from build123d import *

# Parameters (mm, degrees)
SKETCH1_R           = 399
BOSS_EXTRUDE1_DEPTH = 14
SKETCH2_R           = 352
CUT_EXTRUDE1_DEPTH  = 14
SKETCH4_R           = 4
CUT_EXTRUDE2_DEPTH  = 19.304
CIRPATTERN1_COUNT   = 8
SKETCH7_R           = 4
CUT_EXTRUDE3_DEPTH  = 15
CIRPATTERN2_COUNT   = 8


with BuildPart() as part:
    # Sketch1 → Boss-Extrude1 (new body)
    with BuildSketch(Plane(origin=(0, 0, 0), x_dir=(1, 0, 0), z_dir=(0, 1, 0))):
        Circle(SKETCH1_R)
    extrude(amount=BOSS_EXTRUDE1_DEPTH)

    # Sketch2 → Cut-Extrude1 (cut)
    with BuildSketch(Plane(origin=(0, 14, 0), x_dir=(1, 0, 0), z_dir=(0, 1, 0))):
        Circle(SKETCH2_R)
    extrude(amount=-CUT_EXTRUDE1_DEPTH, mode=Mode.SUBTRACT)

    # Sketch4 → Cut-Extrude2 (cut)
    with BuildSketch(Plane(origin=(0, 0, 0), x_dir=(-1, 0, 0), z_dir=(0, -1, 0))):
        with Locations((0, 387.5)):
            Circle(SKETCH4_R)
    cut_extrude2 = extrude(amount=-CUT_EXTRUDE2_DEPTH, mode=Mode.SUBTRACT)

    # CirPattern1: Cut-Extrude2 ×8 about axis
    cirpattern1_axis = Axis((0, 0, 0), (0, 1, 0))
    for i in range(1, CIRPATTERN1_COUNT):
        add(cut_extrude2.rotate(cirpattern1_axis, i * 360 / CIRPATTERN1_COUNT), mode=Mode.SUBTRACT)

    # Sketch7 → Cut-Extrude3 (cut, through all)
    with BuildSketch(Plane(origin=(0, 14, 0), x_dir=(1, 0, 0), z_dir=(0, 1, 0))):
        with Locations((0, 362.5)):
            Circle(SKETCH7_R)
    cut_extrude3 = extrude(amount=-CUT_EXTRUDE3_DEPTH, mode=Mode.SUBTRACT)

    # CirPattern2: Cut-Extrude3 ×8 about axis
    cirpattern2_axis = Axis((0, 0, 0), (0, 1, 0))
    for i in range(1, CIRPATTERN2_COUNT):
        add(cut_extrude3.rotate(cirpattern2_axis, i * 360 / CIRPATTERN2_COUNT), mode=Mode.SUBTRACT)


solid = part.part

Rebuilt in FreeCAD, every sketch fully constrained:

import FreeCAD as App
import Part
import Sketcher

doc = App.newDocument("Part")
params = doc.addObject("Spreadsheet::Sheet", "Params")
for row, (alias, value) in enumerate([
    ("sketch1_diameter", "798 mm"),
    ("pad1_length", "14 mm"),
    ("sketch2_diameter", "704 mm"),
    ("pocket1_length", "14 mm"),
    ("sketch3_diameter", "8 mm"),
    ("pocket2_length", "19.304 mm"),
    ("sketch4_diameter", "8 mm"),
], start=1):
    params.set(f"A{row}", alias)
    params.set(f"B{row}", "=" + value)
    params.setAlias(f"B{row}", alias)

body = doc.addObject("PartDesign::Body", "Body")

# Sketch on XZ plane
sketch1 = body.newObject("Sketcher::SketchObject", "Sketch")
sketch1.AttachmentSupport = (doc.getObject("XZ_Plane"), [""])
sketch1.MapMode = "FlatFace"
sketch1.addGeometry(Part.Circle(App.Vector(0, 0, 0), App.Vector(0, 0, 1), 399), False)
sketch1.addConstraint(Sketcher.Constraint("Coincident", 0, 3, -1, 1))
sketch1.addConstraint(Sketcher.Constraint("Diameter", 0, 798.0))
sketch1.setExpression("Constraints[1]", "Params.sketch1_diameter")
pad1 = body.newObject("PartDesign::Pad", "Pad")
pad1.Profile = sketch1
pad1.setExpression("Length", "Params.pad1_length")
pad1.Reversed = True

# Sketch on XZ plane
sketch2 = body.newObject("Sketcher::SketchObject", "Sketch001")
sketch2.AttachmentSupport = (doc.getObject("XZ_Plane"), [""])
sketch2.MapMode = "FlatFace"
sketch2.AttachmentOffset = App.Placement(App.Vector(0, 0, -14), App.Rotation())
sketch2.addGeometry(Part.Circle(App.Vector(0, 0, 0), App.Vector(0, 0, 1), 352), False)
sketch2.addConstraint(Sketcher.Constraint("Coincident", 0, 3, -1, 1))
sketch2.addConstraint(Sketcher.Constraint("Diameter", 0, 704.0))
sketch2.setExpression("Constraints[1]", "Params.sketch2_diameter")
pocket1 = body.newObject("PartDesign::Pocket", "Pocket")
pocket1.Profile = sketch2
pocket1.setExpression("Length", "Params.pocket1_length")
pocket1.Reversed = True

# Sketch on XZ plane
sketch3 = body.newObject("Sketcher::SketchObject", "Sketch002")
sketch3.AttachmentSupport = (doc.getObject("XZ_Plane"), [""])
sketch3.MapMode = "FlatFace"
sketch3.addGeometry(Part.Circle(App.Vector(0, -387.5, 0), App.Vector(0, 0, 1), 4), False)
sketch3.addConstraint(Sketcher.Constraint("PointOnObject", 0, 3, -2))
sketch3.addConstraint(Sketcher.Constraint("Diameter", 0, 8.0))
sketch3.addConstraint(Sketcher.Constraint("DistanceY", 0, 3, -1, 1, 387.5))
sketch3.setExpression("Constraints[1]", "Params.sketch3_diameter")
pocket2 = body.newObject("PartDesign::Pocket", "Pocket001")
pocket2.Profile = sketch3
pocket2.setExpression("Length", "Params.pocket2_length")
doc.recompute()

polarpattern = body.newObject("PartDesign::PolarPattern", "PolarPattern")
polarpattern.Originals = [pocket2]
polarpattern.Axis = (doc.getObject("Y_Axis"), [""])
polarpattern.Angle = 360
polarpattern.Occurrences = 8
body.Tip = polarpattern

# Sketch on XZ plane
sketch4 = body.newObject("Sketcher::SketchObject", "Sketch003")
sketch4.AttachmentSupport = (doc.getObject("XZ_Plane"), [""])
sketch4.MapMode = "FlatFace"
sketch4.AttachmentOffset = App.Placement(App.Vector(0, 0, -14), App.Rotation())
sketch4.addGeometry(Part.Circle(App.Vector(0, -362.5, 0), App.Vector(0, 0, 1), 4), False)
sketch4.addConstraint(Sketcher.Constraint("PointOnObject", 0, 3, -2))
sketch4.addConstraint(Sketcher.Constraint("Diameter", 0, 8.0))
sketch4.addConstraint(Sketcher.Constraint("DistanceY", 0, 3, -1, 1, 362.5))
sketch4.setExpression("Constraints[1]", "Params.sketch4_diameter")
pocket3 = body.newObject("PartDesign::Pocket", "Pocket002")
pocket3.Profile = sketch4
pocket3.Type = "ThroughAll"
pocket3.Reversed = True
doc.recompute()

polarpattern2 = body.newObject("PartDesign::PolarPattern", "PolarPattern001")
polarpattern2.Originals = [pocket3]
polarpattern2.Axis = (doc.getObject("Y_Axis"), [""])
polarpattern2.Angle = 360
polarpattern2.Occurrences = 8
body.Tip = polarpattern2

doc.recompute()
